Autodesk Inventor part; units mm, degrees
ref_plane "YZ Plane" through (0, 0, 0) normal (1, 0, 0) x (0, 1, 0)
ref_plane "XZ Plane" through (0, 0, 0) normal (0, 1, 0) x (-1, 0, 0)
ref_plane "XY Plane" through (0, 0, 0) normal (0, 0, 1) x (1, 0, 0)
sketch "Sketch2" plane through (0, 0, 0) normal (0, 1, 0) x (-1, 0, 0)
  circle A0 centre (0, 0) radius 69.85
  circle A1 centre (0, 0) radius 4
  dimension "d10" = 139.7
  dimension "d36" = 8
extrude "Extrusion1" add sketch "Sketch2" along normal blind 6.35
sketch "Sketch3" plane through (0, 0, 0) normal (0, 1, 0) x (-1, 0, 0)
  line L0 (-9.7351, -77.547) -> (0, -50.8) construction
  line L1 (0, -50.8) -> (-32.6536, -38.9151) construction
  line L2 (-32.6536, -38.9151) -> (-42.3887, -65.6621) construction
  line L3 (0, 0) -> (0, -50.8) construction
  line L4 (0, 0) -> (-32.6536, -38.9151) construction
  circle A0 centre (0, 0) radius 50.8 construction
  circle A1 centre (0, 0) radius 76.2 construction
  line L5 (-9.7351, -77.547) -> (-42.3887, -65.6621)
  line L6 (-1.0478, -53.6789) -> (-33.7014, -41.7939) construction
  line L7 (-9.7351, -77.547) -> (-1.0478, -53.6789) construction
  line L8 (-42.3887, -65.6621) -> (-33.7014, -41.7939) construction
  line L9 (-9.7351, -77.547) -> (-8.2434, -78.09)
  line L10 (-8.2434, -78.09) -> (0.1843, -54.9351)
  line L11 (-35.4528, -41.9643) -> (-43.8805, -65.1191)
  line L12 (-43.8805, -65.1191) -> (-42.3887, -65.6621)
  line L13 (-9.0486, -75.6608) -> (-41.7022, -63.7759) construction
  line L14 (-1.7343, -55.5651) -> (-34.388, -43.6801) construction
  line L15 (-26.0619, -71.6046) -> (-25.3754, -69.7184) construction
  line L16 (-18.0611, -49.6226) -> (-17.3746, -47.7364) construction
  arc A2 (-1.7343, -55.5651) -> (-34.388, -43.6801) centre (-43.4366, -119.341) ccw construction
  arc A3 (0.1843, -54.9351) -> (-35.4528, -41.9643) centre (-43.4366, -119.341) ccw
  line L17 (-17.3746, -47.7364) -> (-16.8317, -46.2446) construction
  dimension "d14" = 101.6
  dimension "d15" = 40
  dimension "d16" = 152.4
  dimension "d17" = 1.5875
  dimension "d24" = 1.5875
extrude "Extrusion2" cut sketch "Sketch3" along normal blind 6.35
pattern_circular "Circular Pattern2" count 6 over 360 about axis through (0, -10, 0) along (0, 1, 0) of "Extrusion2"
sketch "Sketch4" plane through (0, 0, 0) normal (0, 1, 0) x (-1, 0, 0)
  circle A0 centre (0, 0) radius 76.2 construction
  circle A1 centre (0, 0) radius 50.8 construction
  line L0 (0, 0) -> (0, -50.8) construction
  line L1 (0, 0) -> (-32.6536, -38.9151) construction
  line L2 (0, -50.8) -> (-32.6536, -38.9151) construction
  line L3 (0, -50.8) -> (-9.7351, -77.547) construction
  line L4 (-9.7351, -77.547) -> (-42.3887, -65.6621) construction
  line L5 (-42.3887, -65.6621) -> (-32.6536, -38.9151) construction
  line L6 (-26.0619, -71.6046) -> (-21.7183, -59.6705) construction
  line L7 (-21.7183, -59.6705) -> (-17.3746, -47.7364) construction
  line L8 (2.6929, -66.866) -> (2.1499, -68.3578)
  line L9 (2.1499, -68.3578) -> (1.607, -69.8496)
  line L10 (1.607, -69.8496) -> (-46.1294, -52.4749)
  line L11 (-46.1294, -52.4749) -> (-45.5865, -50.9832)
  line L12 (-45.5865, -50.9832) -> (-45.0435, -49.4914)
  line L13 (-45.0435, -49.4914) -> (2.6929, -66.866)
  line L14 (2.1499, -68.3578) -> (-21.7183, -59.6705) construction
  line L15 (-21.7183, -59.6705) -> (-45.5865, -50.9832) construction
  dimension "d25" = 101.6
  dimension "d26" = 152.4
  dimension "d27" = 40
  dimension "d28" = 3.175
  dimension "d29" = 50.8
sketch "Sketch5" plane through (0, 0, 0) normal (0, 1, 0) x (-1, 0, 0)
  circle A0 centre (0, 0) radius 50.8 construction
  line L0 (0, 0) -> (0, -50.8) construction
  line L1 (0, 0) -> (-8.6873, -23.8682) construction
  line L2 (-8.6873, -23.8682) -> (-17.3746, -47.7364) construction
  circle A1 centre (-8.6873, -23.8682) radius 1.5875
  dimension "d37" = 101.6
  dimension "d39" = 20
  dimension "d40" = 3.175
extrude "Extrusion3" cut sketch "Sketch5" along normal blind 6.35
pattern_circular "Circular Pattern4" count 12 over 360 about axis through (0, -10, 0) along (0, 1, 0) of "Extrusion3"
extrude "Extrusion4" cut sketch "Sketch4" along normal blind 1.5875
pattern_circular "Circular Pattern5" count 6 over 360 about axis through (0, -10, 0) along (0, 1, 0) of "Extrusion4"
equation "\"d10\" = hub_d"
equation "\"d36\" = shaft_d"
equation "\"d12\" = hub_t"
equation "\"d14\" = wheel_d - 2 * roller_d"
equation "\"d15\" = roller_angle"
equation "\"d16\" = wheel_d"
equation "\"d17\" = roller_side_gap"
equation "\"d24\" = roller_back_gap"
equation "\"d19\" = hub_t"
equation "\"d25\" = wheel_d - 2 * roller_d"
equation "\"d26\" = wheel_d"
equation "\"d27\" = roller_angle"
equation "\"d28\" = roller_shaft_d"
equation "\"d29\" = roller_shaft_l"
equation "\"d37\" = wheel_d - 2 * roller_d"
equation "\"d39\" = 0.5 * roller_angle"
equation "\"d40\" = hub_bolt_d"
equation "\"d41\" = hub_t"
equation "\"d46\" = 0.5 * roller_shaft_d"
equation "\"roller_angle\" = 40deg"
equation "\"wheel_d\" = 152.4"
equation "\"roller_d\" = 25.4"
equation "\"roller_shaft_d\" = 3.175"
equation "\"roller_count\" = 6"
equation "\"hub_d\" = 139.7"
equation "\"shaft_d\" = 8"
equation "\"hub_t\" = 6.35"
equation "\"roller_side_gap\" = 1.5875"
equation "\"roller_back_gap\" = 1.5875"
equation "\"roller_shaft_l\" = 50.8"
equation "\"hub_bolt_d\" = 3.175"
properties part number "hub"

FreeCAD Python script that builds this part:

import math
import FreeCAD as App
import Part
import Sketcher
from FreeCAD import Vector
Q = App.Units.Quantity


def add_polygon(sketch, points):
    """Adds a closed chain of lines whose ends are joined by coincident constraints."""
    first, n = sketch.GeometryCount, len(points)
    for a, b in zip(points, points[1:] + points[:1]):
        sketch.addGeometry(Part.LineSegment(App.Vector(*a, 0), App.Vector(*b, 0)), False)
    for i in range(n):
        sketch.addConstraint(Sketcher.Constraint("Coincident", first + i, 2, first + (i + 1) % n, 1))

doc = App.newDocument("Part")
params = doc.addObject("Spreadsheet::Sheet", "Params")
for row, (alias, value) in enumerate([
    ("sketch1_diameter", "5.5 in"),
    ("pad1_length", "0.25 in"),
    ("sketch2_length", "0.0625 in"),
    ("sketch2_radius", "3.0625 in"),
    ("pocket1_length", "0.25 in"),
    ("sketch3_diameter", "0.125 in"),
    ("pocket2_length", "0.25 in"),
    ("sketch4_length", "2 in"),
    ("sketch4_length2", "0.0625 in"),
    ("pocket3_length", "0.0625 in"),
], start=1):
    params.set(f"A{row}", alias)
    params.set(f"B{row}", "=" + value)
    params.setAlias(f"B{row}", alias)

body = doc.addObject("PartDesign::Body", "Body")

sketch1 = body.newObject("Sketcher::SketchObject", "Sketch")
sketch1.AttachmentSupport = (doc.getObject("XZ_Plane"), [""])
sketch1.MapMode = "FlatFace"
sketch1.addGeometry([
    Part.Circle(Vector(0, 0, 0), Vector(0, 0, 1), 69.85),
    Part.Circle(Vector(0, 0, 0), Vector(0, 0, 1), 4),
], False)
sketch1.addConstraint([
    Sketcher.Constraint("Coincident", 0, 3, -1, 1),
    Sketcher.Constraint("Coincident", 1, 3, -1, 1),
    Sketcher.Constraint("Diameter", 0, Q("5.5 in")),
    Sketcher.Constraint("Diameter", 1, 8.0),
])
sketch1.setExpression("Constraints[2]", "Params.sketch1_diameter")
pad1 = body.newObject("PartDesign::Pad", "Pad")
pad1.Profile = sketch1
pad1.setExpression("Length", "Params.pad1_length")
pad1.Reversed = True

sketch2 = body.newObject("Sketcher::SketchObject", "Sketch001")
sketch2.AttachmentSupport = (doc.getObject("XZ_Plane"), [""])
sketch2.MapMode = "FlatFace"
sketch2.addGeometry([
    Part.LineSegment(Vector(42.3887, -65.6621, 0), Vector(9.7351, -77.547, 0)),
    Part.LineSegment(Vector(9.7351, -77.547, 0), Vector(8.2434, -78.09, 0)),
    Part.LineSegment(Vector(8.2434, -78.09, 0), Vector(-0.1843, -54.9351, 0)),
    Part.ArcOfCircle(Part.Circle(Vector(43.4366, -119.341, 0), Vector(0, 0, 1), 77.78755), math.radians(95.890985), math.radians(124.109044)),
    Part.LineSegment(Vector(35.4528, -41.9643, 0), Vector(43.8805, -65.1191, 0)),
    Part.LineSegment(Vector(43.8805, -65.1191, 0), Vector(42.3887, -65.6621, 0)),
], False)
sketch2.addConstraint([
    Sketcher.Constraint("Coincident", 0, 2, 1, 1),
    Sketcher.Constraint("Coincident", 1, 2, 2, 1),
    Sketcher.Constraint("Coincident", 2, 2, 3, 2),
    Sketcher.Constraint("Coincident", 3, 1, 4, 1),
    Sketcher.Constraint("Coincident", 4, 2, 5, 1),
    Sketcher.Constraint("Coincident", 5, 2, 0, 1),
    Sketcher.Constraint("Parallel", 0, 1),
    Sketcher.Constraint("Perpendicular", 1, 2),
    Sketcher.Constraint("Parallel", 2, 4),
    Sketcher.Constraint("Perpendicular", 4, 5),
    Sketcher.Constraint("Equal", 2, 4),
    Sketcher.Constraint("Equal", 1, 5),
    Sketcher.Constraint("Distance", 1, Q("0.0625 in")),
    Sketcher.Constraint("Angle", 0, Q("-160 deg")),
    Sketcher.Constraint("Radius", 3, Q("3.0625 in")),
    Sketcher.Constraint("Distance", 4, Q("0.9701 in")),
    Sketcher.Constraint("DistanceX", -1, 1, 3, 3, Q("1.7101 in")),
    Sketcher.Constraint("DistanceY", 1, 2, -1, 1, Q("3.0744 in")),
    Sketcher.Constraint("DistanceX", 0, 2, 3, 1, Q("1.0125 in")),
])
sketch2.setExpression("Constraints[12]", "Params.sketch2_length")
sketch2.setExpression("Constraints[14]", "Params.sketch2_radius")
pocket1 = body.newObject("PartDesign::Pocket", "Pocket")
pocket1.Profile = sketch2
pocket1.setExpression("Length", "Params.pocket1_length")
doc.recompute()

polarpattern = body.newObject("PartDesign::PolarPattern", "PolarPattern")
polarpattern.Originals = [pocket1]
polarpattern.Axis = (doc.getObject("Y_Axis"), [""])
polarpattern.Angle = 360
polarpattern.Occurrences = 6
body.Tip = polarpattern

sketch3 = body.newObject("Sketcher::SketchObject", "Sketch002")
sketch3.AttachmentSupport = (doc.getObject("XZ_Plane"), [""])
sketch3.MapMode = "FlatFace"
sketch3.addGeometry(Part.Circle(Vector(8.6873, -23.8682, 0), Vector(0, 0, 1), 1.5875), False)
sketch3.addConstraint([
    Sketcher.Constraint("Diameter", 0, Q("0.125 in")),
    Sketcher.Constraint("DistanceY", 0, 3, -1, 1, Q("0.9397 in")),
    Sketcher.Constraint("DistanceX", -1, 1, 0, 3, 8.6873),
])
sketch3.setExpression("Constraints[0]", "Params.sketch3_diameter")
pocket2 = body.newObject("PartDesign::Pocket", "Pocket001")
pocket2.Profile = sketch3
pocket2.setExpression("Length", "Params.pocket2_length")
doc.recompute()

polarpattern2 = body.newObject("PartDesign::PolarPattern", "PolarPattern001")
polarpattern2.Originals = [pocket2]
polarpattern2.Axis = (doc.getObject("Y_Axis"), [""])
polarpattern2.Angle = 360
polarpattern2.Occurrences = 12
body.Tip = polarpattern2

sketch4 = body.newObject("Sketcher::SketchObject", "Sketch003")
sketch4.AttachmentSupport = (doc.getObject("XZ_Plane"), [""])
sketch4.MapMode = "FlatFace"
add_polygon(sketch4, [(-2.1499, -68.3578), (-2.6929, -66.866), (45.0435, -49.4914), (45.5865, -50.9832), (46.1294, -52.4749), (-1.607, -69.8496)])
sketch4.addConstraint([
    Sketcher.Constraint("Perpendicular", 0, 1),
    Sketcher.Constraint("Perpendicular", 1, 2),
    Sketcher.Constraint("Parallel", 2, 3),
    Sketcher.Constraint("Perpendicular", 3, 4),
    Sketcher.Constraint("Perpendicular", 4, 5),
    Sketcher.Constraint("Equal", 0, 2),
    Sketcher.Constraint("Equal", 2, 3),
    Sketcher.Constraint("Distance", 1, Q("2 in")),
    Sketcher.Constraint("Angle", 0, Q("110.001 deg")),
    Sketcher.Constraint("Distance", 0, Q("0.0625 in")),
    Sketcher.Constraint("DistanceX", 0, 2, -1, 1, 2.693),
    Sketcher.Constraint("DistanceY", 0, 2, -1, 1, 66.866),
])
sketch4.setExpression("Constraints[13]", "Params.sketch4_length")
sketch4.setExpression("Constraints[15]", "Params.sketch4_length2")
pocket3 = body.newObject("PartDesign::Pocket", "Pocket002")
pocket3.Profile = sketch4
pocket3.setExpression("Length", "Params.pocket3_length")
doc.recompute()

polarpattern3 = body.newObject("PartDesign::PolarPattern", "PolarPattern002")
polarpattern3.Originals = [pocket3]
polarpattern3.Axis = (doc.getObject("Y_Axis"), [""])
polarpattern3.Angle = 360
polarpattern3.Occurrences = 6
body.Tip = polarpattern3

doc.recompute()
